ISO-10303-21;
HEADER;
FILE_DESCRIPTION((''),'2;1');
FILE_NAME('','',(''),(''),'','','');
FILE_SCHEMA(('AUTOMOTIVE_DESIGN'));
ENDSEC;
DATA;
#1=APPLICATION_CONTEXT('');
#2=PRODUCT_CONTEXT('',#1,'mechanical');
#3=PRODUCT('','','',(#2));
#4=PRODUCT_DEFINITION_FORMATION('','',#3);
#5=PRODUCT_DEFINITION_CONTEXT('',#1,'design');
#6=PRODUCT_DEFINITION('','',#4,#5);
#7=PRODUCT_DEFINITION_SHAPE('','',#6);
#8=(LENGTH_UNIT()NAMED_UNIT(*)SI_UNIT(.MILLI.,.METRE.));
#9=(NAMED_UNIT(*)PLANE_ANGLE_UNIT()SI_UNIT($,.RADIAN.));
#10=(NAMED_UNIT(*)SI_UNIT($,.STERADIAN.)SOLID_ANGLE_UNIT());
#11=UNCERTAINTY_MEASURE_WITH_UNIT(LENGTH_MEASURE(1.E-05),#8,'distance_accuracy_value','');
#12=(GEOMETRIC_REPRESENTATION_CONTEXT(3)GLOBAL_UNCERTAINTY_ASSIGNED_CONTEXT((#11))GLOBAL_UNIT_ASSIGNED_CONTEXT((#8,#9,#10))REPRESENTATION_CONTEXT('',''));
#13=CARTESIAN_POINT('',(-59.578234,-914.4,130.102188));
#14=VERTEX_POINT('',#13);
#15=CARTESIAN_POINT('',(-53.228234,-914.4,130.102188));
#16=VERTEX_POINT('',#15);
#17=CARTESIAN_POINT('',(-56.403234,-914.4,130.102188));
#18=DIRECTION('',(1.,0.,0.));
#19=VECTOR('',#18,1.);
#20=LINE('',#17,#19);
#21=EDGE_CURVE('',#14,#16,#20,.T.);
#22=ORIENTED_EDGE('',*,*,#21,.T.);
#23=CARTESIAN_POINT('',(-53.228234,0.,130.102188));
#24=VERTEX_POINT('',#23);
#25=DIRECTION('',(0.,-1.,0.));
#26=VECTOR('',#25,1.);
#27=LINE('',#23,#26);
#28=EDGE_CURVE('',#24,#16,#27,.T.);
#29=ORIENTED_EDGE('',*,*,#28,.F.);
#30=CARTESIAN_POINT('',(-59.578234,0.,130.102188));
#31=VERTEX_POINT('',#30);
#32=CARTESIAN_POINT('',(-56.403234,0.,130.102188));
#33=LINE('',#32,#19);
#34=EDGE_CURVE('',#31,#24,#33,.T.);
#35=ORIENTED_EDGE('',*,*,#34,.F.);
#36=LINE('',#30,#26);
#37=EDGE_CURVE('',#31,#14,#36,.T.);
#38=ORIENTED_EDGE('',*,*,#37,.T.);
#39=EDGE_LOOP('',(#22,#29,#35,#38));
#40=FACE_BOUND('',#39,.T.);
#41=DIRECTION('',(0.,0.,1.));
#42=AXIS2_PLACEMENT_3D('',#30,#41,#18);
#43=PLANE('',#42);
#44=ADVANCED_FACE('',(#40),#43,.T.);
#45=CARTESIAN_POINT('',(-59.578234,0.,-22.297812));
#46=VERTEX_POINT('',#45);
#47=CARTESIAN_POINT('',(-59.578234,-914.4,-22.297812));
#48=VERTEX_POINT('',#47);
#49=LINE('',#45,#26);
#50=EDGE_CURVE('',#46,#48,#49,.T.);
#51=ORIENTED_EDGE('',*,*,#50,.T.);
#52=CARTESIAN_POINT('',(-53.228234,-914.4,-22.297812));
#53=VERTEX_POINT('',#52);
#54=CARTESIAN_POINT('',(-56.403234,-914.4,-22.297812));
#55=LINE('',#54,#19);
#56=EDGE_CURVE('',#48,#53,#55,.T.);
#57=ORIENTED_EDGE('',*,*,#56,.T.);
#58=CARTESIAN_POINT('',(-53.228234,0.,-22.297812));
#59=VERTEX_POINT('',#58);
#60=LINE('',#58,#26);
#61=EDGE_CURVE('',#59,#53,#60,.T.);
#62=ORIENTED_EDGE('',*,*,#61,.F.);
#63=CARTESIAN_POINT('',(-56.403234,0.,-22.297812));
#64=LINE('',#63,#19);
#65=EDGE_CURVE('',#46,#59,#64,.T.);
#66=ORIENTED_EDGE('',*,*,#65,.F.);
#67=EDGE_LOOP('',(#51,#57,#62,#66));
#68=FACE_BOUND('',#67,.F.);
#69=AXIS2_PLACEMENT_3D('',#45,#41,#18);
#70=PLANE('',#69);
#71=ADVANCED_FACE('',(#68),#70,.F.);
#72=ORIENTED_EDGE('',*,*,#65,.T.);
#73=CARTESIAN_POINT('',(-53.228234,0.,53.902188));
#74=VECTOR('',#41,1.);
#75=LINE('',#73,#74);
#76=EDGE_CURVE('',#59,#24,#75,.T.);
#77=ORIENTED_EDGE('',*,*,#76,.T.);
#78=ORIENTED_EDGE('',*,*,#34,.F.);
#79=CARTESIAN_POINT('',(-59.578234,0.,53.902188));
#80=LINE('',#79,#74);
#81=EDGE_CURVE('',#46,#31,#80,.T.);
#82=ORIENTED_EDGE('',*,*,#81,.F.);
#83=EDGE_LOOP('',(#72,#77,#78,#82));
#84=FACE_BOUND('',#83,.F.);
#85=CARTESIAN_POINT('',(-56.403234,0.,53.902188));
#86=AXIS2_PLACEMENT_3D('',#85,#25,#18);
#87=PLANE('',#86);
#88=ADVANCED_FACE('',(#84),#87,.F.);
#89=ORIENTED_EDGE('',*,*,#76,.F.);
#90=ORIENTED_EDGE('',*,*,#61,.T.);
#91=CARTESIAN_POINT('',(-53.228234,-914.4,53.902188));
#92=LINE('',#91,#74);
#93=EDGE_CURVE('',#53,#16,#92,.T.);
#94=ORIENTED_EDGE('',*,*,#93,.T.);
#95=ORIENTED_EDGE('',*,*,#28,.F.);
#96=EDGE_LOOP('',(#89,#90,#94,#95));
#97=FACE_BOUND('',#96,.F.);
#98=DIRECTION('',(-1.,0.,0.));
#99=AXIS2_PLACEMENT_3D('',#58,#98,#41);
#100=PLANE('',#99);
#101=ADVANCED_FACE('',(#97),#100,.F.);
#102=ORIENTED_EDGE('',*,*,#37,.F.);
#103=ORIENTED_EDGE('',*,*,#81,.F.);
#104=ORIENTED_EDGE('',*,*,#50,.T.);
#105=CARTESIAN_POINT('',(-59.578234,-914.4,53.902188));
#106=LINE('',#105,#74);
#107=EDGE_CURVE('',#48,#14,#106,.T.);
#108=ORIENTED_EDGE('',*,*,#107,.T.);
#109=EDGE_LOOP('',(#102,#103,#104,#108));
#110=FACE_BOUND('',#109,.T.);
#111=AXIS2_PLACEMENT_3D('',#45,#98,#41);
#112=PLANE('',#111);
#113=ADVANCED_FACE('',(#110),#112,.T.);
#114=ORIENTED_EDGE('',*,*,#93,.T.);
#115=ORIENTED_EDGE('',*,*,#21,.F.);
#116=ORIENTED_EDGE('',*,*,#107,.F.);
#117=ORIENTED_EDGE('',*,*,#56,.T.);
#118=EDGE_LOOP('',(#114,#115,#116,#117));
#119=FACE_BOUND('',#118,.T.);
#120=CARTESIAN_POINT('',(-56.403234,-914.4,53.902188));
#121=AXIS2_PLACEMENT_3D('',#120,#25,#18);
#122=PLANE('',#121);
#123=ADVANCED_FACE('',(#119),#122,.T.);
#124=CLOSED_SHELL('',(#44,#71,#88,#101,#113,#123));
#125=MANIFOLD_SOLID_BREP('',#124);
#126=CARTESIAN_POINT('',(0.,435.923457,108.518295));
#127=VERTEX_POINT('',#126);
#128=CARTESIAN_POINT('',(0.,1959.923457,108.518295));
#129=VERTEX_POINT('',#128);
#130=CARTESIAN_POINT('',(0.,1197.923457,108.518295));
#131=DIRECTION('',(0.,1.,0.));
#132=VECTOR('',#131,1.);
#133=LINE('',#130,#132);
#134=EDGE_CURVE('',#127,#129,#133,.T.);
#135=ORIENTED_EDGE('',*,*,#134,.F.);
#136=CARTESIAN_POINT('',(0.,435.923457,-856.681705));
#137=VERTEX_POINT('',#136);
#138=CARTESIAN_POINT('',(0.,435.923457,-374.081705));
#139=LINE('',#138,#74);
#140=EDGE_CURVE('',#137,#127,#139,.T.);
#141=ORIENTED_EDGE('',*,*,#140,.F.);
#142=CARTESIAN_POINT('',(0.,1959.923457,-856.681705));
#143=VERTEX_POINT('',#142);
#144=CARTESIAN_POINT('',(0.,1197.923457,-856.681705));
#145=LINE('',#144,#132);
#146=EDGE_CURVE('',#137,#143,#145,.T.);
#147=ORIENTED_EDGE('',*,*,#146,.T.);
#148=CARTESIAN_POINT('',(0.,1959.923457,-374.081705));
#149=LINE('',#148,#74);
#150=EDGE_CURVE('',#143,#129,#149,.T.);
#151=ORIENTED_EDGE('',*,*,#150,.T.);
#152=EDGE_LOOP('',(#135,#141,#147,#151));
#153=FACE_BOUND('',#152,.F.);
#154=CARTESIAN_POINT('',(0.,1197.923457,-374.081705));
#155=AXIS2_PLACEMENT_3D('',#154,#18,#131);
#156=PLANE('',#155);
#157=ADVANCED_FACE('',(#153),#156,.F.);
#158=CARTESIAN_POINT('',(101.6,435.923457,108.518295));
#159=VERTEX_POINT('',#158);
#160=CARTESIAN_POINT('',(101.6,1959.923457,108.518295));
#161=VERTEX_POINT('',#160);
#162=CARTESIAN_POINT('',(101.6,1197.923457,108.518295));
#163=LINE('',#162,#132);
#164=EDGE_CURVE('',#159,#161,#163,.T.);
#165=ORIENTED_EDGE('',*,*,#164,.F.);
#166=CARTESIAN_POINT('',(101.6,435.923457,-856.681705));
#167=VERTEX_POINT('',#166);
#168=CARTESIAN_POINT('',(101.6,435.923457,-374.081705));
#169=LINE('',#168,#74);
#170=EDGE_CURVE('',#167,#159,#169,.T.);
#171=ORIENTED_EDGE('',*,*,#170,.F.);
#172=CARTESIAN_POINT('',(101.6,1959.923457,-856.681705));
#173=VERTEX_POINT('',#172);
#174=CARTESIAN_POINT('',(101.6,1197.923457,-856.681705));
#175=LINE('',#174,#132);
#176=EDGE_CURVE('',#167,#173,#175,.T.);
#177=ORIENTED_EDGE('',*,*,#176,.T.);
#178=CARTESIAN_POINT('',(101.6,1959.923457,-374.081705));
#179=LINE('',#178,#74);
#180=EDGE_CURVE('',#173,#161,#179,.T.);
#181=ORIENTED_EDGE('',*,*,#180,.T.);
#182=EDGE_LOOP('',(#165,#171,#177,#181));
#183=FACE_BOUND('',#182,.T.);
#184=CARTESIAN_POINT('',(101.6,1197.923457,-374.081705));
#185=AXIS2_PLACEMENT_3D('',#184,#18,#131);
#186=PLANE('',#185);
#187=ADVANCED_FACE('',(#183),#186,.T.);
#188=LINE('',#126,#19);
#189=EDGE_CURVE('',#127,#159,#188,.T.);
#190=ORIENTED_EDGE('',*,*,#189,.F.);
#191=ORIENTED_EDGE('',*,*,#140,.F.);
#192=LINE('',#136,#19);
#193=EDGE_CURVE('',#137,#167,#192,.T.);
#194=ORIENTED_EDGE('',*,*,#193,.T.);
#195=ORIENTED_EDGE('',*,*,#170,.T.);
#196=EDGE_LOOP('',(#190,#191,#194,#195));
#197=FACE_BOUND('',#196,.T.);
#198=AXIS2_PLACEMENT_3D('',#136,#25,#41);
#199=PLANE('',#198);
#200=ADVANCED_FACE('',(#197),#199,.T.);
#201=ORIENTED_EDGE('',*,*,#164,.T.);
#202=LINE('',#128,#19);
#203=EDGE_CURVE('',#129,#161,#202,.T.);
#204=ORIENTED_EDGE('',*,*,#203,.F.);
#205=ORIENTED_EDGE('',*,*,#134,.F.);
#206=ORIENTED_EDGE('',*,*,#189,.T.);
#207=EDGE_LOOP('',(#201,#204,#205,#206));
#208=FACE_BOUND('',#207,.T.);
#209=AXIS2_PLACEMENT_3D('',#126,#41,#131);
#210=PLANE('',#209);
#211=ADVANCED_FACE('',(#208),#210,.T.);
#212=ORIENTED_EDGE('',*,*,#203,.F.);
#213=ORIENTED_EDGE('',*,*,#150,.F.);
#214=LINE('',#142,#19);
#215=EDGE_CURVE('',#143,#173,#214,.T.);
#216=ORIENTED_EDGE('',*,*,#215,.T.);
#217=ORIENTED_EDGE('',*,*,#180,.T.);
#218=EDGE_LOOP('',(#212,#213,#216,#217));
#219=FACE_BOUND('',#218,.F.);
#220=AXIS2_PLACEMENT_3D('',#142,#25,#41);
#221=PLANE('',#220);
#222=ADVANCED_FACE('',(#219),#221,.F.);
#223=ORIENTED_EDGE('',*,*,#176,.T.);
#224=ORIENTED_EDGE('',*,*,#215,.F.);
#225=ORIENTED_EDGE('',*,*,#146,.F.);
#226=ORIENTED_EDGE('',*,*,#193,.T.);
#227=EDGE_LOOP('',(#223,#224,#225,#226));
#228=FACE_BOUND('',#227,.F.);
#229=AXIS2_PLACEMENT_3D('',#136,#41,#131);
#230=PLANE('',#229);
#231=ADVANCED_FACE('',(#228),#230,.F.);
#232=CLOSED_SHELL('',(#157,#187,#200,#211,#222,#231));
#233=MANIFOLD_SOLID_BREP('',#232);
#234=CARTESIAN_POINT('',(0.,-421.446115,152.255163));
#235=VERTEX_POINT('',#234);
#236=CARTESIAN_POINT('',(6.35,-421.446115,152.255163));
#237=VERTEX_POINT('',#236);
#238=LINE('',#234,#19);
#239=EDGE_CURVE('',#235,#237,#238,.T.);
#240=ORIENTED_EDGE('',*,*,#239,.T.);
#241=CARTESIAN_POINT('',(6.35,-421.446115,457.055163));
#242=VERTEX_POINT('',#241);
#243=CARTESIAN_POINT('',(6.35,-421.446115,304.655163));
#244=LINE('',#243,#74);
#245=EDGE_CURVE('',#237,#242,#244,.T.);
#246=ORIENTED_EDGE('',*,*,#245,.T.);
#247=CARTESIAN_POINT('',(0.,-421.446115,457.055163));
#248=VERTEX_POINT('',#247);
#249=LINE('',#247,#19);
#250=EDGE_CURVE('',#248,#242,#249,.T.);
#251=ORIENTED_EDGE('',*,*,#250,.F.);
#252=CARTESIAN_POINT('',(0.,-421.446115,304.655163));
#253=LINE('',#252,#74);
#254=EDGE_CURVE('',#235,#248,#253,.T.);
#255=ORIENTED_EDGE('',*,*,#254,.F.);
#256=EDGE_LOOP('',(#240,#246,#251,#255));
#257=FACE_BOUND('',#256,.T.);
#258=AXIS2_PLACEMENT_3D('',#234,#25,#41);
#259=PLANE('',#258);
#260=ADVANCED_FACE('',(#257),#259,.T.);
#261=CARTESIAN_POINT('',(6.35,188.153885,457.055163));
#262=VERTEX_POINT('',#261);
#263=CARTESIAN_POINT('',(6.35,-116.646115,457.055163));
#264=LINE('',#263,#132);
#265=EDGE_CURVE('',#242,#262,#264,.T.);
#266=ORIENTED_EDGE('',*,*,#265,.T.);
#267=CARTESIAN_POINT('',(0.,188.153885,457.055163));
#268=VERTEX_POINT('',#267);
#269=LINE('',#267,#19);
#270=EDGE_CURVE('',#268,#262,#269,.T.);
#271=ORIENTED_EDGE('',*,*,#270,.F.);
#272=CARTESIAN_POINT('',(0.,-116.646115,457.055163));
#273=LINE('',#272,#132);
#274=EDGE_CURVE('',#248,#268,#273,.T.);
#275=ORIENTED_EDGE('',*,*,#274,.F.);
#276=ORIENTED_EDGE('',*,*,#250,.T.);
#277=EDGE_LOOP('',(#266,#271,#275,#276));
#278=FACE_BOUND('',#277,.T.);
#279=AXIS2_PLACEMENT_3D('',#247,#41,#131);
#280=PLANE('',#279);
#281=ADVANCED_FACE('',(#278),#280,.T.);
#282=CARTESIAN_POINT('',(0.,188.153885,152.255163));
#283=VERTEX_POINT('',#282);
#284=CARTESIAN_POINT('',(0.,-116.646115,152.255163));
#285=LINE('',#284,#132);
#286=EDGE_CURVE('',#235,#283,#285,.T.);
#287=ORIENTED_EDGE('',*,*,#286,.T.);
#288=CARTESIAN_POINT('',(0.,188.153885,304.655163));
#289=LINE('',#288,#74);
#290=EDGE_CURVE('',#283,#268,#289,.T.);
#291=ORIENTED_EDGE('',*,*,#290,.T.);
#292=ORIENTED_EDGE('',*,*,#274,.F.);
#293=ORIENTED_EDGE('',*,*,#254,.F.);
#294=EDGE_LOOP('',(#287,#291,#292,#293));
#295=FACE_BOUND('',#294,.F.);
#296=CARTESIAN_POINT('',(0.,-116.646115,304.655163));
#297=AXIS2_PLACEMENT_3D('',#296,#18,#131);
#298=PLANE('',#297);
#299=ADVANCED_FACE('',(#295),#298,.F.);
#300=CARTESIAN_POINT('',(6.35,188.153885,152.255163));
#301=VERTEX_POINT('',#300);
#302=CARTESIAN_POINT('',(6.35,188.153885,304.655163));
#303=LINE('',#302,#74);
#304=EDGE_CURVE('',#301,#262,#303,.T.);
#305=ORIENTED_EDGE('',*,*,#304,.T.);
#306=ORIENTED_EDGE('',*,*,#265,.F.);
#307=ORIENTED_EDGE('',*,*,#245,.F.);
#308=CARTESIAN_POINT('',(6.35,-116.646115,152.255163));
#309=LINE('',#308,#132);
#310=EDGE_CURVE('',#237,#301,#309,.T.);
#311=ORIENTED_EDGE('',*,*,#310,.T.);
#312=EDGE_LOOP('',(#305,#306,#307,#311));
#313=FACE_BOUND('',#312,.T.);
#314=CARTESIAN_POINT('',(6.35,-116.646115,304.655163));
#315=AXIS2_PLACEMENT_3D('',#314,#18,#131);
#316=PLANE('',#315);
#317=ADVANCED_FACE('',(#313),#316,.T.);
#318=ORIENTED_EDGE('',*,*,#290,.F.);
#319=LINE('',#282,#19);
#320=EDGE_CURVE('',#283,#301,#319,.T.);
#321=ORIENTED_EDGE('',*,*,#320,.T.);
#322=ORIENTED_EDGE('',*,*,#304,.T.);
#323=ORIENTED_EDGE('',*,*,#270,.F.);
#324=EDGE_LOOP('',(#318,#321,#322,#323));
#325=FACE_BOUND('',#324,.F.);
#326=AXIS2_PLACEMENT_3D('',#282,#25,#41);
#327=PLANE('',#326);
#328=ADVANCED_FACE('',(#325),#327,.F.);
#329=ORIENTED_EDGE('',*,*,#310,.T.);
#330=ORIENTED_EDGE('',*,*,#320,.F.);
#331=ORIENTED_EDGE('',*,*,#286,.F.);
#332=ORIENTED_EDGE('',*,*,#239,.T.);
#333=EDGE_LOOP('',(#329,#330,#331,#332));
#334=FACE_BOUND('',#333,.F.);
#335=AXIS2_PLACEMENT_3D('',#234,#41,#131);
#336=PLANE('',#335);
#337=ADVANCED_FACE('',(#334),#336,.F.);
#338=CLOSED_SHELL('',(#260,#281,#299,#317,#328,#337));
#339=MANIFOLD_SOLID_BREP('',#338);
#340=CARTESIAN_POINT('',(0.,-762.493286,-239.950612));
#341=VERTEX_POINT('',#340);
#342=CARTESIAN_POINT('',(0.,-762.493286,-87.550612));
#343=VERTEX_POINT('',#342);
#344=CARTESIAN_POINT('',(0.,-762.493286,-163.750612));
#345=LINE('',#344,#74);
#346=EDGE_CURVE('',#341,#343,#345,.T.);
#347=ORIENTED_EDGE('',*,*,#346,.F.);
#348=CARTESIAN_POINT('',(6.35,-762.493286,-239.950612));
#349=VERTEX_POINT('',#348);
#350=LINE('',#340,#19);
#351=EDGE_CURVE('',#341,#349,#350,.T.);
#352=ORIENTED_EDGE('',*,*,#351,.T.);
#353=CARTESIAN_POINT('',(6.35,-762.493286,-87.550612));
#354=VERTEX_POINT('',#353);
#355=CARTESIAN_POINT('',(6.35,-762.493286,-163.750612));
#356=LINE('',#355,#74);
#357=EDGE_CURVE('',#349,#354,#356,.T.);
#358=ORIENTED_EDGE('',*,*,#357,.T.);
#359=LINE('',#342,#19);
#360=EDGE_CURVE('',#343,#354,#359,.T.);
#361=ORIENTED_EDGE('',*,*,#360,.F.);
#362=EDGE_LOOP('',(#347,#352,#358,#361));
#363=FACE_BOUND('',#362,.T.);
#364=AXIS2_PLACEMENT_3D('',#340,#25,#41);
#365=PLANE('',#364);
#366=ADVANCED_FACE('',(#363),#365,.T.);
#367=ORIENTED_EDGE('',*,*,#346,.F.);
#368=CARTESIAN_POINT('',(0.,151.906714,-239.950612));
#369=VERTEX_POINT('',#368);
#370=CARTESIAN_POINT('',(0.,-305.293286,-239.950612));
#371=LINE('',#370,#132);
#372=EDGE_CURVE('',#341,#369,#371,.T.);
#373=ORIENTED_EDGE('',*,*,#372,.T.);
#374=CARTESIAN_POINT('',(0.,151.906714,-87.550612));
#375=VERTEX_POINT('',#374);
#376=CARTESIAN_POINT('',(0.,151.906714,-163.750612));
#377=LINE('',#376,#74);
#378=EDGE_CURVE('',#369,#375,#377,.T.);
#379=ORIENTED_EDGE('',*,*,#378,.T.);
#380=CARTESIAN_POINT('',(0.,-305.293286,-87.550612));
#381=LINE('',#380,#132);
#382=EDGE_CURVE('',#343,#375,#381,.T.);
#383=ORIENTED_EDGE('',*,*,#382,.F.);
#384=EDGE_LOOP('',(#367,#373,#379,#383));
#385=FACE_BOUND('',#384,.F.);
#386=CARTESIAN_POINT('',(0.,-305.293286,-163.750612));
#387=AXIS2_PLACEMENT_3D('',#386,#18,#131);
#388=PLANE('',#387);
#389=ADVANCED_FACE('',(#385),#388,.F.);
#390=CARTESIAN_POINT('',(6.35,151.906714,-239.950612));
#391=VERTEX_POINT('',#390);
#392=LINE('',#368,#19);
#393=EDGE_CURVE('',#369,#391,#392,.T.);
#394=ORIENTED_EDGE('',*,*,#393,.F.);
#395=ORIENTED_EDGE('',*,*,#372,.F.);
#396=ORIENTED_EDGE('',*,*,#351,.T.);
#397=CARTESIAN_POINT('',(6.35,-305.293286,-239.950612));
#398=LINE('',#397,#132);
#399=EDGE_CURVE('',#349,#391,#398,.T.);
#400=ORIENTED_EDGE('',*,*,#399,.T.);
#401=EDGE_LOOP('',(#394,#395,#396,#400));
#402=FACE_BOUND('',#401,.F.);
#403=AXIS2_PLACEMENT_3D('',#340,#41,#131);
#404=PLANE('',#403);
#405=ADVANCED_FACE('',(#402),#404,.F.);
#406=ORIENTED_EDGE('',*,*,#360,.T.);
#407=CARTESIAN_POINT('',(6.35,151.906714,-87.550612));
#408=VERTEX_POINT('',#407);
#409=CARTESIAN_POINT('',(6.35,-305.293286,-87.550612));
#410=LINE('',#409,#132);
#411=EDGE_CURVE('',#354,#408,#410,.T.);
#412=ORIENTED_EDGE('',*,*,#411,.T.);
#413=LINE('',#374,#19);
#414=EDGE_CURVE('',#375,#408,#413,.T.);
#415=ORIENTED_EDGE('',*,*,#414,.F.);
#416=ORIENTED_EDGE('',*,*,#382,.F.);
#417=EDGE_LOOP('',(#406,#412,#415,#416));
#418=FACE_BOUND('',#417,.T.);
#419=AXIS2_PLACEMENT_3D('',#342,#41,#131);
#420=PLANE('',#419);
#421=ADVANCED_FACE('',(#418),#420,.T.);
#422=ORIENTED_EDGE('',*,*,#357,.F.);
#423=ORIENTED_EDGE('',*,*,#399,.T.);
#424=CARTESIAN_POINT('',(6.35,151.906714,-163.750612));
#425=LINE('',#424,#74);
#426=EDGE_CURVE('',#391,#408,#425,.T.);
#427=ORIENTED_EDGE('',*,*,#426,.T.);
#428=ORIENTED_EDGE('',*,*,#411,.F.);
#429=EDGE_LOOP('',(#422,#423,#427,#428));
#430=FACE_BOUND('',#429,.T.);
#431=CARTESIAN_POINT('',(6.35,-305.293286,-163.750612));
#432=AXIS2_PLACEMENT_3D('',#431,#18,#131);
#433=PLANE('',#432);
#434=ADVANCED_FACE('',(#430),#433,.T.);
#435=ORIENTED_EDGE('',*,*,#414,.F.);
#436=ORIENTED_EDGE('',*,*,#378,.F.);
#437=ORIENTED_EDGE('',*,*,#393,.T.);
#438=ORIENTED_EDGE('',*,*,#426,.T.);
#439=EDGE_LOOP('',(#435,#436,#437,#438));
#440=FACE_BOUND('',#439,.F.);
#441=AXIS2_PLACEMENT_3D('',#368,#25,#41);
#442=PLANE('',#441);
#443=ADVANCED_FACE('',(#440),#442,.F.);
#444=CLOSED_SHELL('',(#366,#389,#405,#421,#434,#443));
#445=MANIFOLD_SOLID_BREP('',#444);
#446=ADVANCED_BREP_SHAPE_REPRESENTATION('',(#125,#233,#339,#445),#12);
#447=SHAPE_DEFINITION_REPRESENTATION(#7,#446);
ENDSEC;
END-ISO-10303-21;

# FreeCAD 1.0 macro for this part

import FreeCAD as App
import Part
import Sketcher
Q = App.Units.Quantity

doc = App.newDocument("Part")
body = doc.addObject("PartDesign::Body", "Body")

# Sketch on XZ plane
sketch1 = doc.addObject("Sketcher::SketchObject", "Sketch")
body.addObject(sketch1)
sketch1.AttachmentSupport = (doc.XZ_Plane, [""])
sketch1.MapMode = "FlatFace"
sketch1.addGeometry([
    Part.LineSegment(App.Vector(-59.578234, 130.102188, 0), App.Vector(-59.578234, -22.297812, 0)),
    Part.LineSegment(App.Vector(-59.578234, -22.297812, 0), App.Vector(-53.228234, -22.297812, 0)),
    Part.LineSegment(App.Vector(-53.228234, -22.297812, 0), App.Vector(-53.228234, 130.102188, 0)),
    Part.LineSegment(App.Vector(-53.228234, 130.102188, 0), App.Vector(-59.578234, 130.102188, 0)),
], False)
sketch1.addConstraint([
    Sketcher.Constraint("Coincident", 0, 2, 1, 1),
    Sketcher.Constraint("Coincident", 1, 2, 2, 1),
    Sketcher.Constraint("Coincident", 2, 2, 3, 1),
    Sketcher.Constraint("Coincident", 3, 2, 0, 1),
    Sketcher.Constraint("Vertical", 0),
    Sketcher.Constraint("Horizontal", 1),
    Sketcher.Constraint("Vertical", 2),
    Sketcher.Constraint("Horizontal", 3),
    Sketcher.Constraint("DistanceY", 0, 2, 0, 1, Q("6 in")),
    Sketcher.Constraint("DistanceX", 1, 1, 1, 2, Q("0.25 in")),
    Sketcher.Constraint("DistanceY", -1, 1, 2, 2, 130.102188),
    Sketcher.Constraint("DistanceX", 0, 2, -1, 1, 59.578234),
])
pad1 = doc.addObject("PartDesign::Pad", "Pad")
body.addObject(pad1)
pad1.Profile = sketch1
pad1.Length = Q("36 in")
body2 = doc.addObject("PartDesign::Body", "Body001")

# Sketch on YZ plane
sketch2 = doc.addObject("Sketcher::SketchObject", "Sketch001")
body2.addObject(sketch2)
sketch2.AttachmentSupport = (doc.getObject("YZ_Plane001"), [""])
sketch2.MapMode = "FlatFace"
sketch2.addGeometry([
    Part.LineSegment(App.Vector(-762.493286, -87.550612, 0), App.Vector(-762.493286, -239.950612, 0)),
    Part.LineSegment(App.Vector(-762.493286, -239.950612, 0), App.Vector(151.906714, -239.950612, 0)),
    Part.LineSegment(App.Vector(151.906714, -239.950612, 0), App.Vector(151.906714, -87.550612, 0)),
    Part.LineSegment(App.Vector(151.906714, -87.550612, 0), App.Vector(-762.493286, -87.550612, 0)),
], False)
sketch2.addConstraint([
    Sketcher.Constraint("Coincident", 0, 2, 1, 1),
    Sketcher.Constraint("Coincident", 1, 2, 2, 1),
    Sketcher.Constraint("Coincident", 2, 2, 3, 1),
    Sketcher.Constraint("Coincident", 3, 2, 0, 1),
    Sketcher.Constraint("Vertical", 0),
    Sketcher.Constraint("Horizontal", 1),
    Sketcher.Constraint("Vertical", 2),
    Sketcher.Constraint("Horizontal", 3),
    Sketcher.Constraint("DistanceX", 1, 1, 1, 2, Q("36 in")),
    Sketcher.Constraint("DistanceY", 0, 2, 0, 1, Q("6 in")),
    Sketcher.Constraint("DistanceY", 0, 2, -1, 1, 239.950612),
    Sketcher.Constraint("DistanceX", 0, 2, -1, 1, 762.493286),
])
pad2 = doc.addObject("PartDesign::Pad", "Pad001")
body2.addObject(pad2)
pad2.Profile = sketch2
pad2.Length = Q("0.25 in")
body3 = doc.addObject("PartDesign::Body", "Body002")

# Sketch on YZ plane
sketch3 = doc.addObject("Sketcher::SketchObject", "Sketch002")
body3.addObject(sketch3)
sketch3.AttachmentSupport = (doc.getObject("YZ_Plane002"), [""])
sketch3.MapMode = "FlatFace"
sketch3.addGeometry([
    Part.LineSegment(App.Vector(-421.446115, 457.055163, 0), App.Vector(-421.446115, 152.255163, 0)),
    Part.LineSegment(App.Vector(-421.446115, 152.255163, 0), App.Vector(188.153885, 152.255163, 0)),
    Part.LineSegment(App.Vector(188.153885, 152.255163, 0), App.Vector(188.153885, 457.055163, 0)),
    Part.LineSegment(App.Vector(188.153885, 457.055163, 0), App.Vector(-421.446115, 457.055163, 0)),
], False)
sketch3.addConstraint([
    Sketcher.Constraint("Coincident", 0, 2, 1, 1),
    Sketcher.Constraint("Coincident", 1, 2, 2, 1),
    Sketcher.Constraint("Coincident", 2, 2, 3, 1),
    Sketcher.Constraint("Coincident", 3, 2, 0, 1),
    Sketcher.Constraint("Vertical", 0),
    Sketcher.Constraint("Horizontal", 1),
    Sketcher.Constraint("Vertical", 2),
    Sketcher.Constraint("Horizontal", 3),
    Sketcher.Constraint("DistanceX", 1, 1, 1, 2, Q("24 in")),
    Sketcher.Constraint("DistanceY", 0, 2, 0, 1, Q("12 in")),
    Sketcher.Constraint("DistanceX", 0, 2, -1, 1, 421.446115),
    Sketcher.Constraint("DistanceY", -1, 1, 0, 2, 152.255163),
])
pad3 = doc.addObject("PartDesign::Pad", "Pad002")
body3.addObject(pad3)
pad3.Profile = sketch3
pad3.Length = Q("0.25 in")
body4 = doc.addObject("PartDesign::Body", "Body003")

# Sketch on YZ plane
sketch4 = doc.addObject("Sketcher::SketchObject", "Sketch003")
body4.addObject(sketch4)
sketch4.AttachmentSupport = (doc.getObject("YZ_Plane003"), [""])
sketch4.MapMode = "FlatFace"
sketch4.addGeometry([
    Part.LineSegment(App.Vector(435.923457, 108.518295, 0), App.Vector(435.923457, -856.681705, 0)),
    Part.LineSegment(App.Vector(435.923457, -856.681705, 0), App.Vector(1959.923457, -856.681705, 0)),
    Part.LineSegment(App.Vector(1959.923457, -856.681705, 0), App.Vector(1959.923457, 108.518295, 0)),
    Part.LineSegment(App.Vector(1959.923457, 108.518295, 0), App.Vector(435.923457, 108.518295, 0)),
], False)
sketch4.addConstraint([
    Sketcher.Constraint("Coincident", 0, 2, 1, 1),
    Sketcher.Constraint("Coincident", 1, 2, 2, 1),
    Sketcher.Constraint("Coincident", 2, 2, 3, 1),
    Sketcher.Constraint("Coincident", 3, 2, 0, 1),
    Sketcher.Constraint("Vertical", 0),
    Sketcher.Constraint("Horizontal", 1),
    Sketcher.Constraint("Vertical", 2),
    Sketcher.Constraint("Horizontal", 3),
    Sketcher.Constraint("DistanceX", 1, 1, 1, 2, Q("60 in")),
    Sketcher.Constraint("DistanceY", 0, 2, 0, 1, Q("38 in")),
    Sketcher.Constraint("DistanceX", -1, 1, 0, 2, 435.923457),
    Sketcher.Constraint("DistanceY", 0, 2, -1, 1, 856.681705),
])
pad4 = doc.addObject("PartDesign::Pad", "Pad003")
body4.addObject(pad4)
pad4.Profile = sketch4
pad4.Length = Q("4 in")

doc.recompute()
